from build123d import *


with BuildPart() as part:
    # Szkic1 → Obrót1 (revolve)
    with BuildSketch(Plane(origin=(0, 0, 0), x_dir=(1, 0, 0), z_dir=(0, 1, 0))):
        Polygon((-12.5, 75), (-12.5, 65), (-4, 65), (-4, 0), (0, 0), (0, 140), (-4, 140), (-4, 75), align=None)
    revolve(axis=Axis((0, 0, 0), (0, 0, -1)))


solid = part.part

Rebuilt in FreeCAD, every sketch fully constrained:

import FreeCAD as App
import Part
import Sketcher
from FreeCAD import Vector
Q = App.Units.Quantity


def add_polygon(sketch, points):
    """Adds a closed chain of lines whose ends are joined by coincident constraints."""
    first, n = sketch.GeometryCount, len(points)
    for a, b in zip(points, points[1:] + points[:1]):
        sketch.addGeometry(Part.LineSegment(App.Vector(*a, 0), App.Vector(*b, 0)), False)
    for i in range(n):
        sketch.addConstraint(Sketcher.Constraint("Coincident", first + i, 2, first + (i + 1) % n, 1))

doc = App.newDocument("Part")
body = doc.addObject("PartDesign::Body", "Body")

sketch1 = body.newObject("Sketcher::SketchObject", "Sketch")
sketch1.AttachmentSupport = (doc.getObject("XZ_Plane"), [""])
sketch1.MapMode = "FlatFace"
add_polygon(sketch1, [(-12.5, -75), (-12.5, -65), (-4, -65), (-4, 0), (0, 0), (0, -140), (-4, -140), (-4, -75)])
sketch1.addConstraint(Sketcher.Constraint("Vertical", 0))
sketch1.addConstraint(Sketcher.Constraint("Horizontal", 1))
sketch1.addConstraint(Sketcher.Constraint("Vertical", 2))
sketch1.addConstraint(Sketcher.Constraint("Horizontal", 3))
sketch1.addConstraint(Sketcher.Constraint("Vertical", 4))
sketch1.addConstraint(Sketcher.Constraint("Horizontal", 5))
sketch1.addConstraint(Sketcher.Constraint("Vertical", 6))
sketch1.addConstraint(Sketcher.Constraint("Horizontal", 7))
sketch1.addConstraint(Sketcher.Constraint("Coincident", 3, 2, -1, 1))
sketch1.addConstraint(Sketcher.Constraint("Vertical", 2, 2, 5, 2))
sketch1.addConstraint(Sketcher.Constraint("Equal", 2, 6))
sketch1.addConstraint(Sketcher.Constraint("DistanceX", 3, 1, 3, 2, Q("4 mm")))
sketch1.addConstraint(Sketcher.Constraint("DistanceY", 0, 1, 0, 2, Q("10 mm")))
sketch1.addConstraint(Sketcher.Constraint("DistanceY", 2, 1, 2, 2, Q("65 mm")))
sketch1.addConstraint(Sketcher.Constraint("DistanceX", 1, 1, 1, 2, Q("8.5 mm")))
revolution = body.newObject("PartDesign::Revolution", "Revolution")
revolution.Profile = sketch1
revolution.ReferenceAxis = (sketch1, ["V_Axis"])
revolution.Angle = 360

doc.recompute()
